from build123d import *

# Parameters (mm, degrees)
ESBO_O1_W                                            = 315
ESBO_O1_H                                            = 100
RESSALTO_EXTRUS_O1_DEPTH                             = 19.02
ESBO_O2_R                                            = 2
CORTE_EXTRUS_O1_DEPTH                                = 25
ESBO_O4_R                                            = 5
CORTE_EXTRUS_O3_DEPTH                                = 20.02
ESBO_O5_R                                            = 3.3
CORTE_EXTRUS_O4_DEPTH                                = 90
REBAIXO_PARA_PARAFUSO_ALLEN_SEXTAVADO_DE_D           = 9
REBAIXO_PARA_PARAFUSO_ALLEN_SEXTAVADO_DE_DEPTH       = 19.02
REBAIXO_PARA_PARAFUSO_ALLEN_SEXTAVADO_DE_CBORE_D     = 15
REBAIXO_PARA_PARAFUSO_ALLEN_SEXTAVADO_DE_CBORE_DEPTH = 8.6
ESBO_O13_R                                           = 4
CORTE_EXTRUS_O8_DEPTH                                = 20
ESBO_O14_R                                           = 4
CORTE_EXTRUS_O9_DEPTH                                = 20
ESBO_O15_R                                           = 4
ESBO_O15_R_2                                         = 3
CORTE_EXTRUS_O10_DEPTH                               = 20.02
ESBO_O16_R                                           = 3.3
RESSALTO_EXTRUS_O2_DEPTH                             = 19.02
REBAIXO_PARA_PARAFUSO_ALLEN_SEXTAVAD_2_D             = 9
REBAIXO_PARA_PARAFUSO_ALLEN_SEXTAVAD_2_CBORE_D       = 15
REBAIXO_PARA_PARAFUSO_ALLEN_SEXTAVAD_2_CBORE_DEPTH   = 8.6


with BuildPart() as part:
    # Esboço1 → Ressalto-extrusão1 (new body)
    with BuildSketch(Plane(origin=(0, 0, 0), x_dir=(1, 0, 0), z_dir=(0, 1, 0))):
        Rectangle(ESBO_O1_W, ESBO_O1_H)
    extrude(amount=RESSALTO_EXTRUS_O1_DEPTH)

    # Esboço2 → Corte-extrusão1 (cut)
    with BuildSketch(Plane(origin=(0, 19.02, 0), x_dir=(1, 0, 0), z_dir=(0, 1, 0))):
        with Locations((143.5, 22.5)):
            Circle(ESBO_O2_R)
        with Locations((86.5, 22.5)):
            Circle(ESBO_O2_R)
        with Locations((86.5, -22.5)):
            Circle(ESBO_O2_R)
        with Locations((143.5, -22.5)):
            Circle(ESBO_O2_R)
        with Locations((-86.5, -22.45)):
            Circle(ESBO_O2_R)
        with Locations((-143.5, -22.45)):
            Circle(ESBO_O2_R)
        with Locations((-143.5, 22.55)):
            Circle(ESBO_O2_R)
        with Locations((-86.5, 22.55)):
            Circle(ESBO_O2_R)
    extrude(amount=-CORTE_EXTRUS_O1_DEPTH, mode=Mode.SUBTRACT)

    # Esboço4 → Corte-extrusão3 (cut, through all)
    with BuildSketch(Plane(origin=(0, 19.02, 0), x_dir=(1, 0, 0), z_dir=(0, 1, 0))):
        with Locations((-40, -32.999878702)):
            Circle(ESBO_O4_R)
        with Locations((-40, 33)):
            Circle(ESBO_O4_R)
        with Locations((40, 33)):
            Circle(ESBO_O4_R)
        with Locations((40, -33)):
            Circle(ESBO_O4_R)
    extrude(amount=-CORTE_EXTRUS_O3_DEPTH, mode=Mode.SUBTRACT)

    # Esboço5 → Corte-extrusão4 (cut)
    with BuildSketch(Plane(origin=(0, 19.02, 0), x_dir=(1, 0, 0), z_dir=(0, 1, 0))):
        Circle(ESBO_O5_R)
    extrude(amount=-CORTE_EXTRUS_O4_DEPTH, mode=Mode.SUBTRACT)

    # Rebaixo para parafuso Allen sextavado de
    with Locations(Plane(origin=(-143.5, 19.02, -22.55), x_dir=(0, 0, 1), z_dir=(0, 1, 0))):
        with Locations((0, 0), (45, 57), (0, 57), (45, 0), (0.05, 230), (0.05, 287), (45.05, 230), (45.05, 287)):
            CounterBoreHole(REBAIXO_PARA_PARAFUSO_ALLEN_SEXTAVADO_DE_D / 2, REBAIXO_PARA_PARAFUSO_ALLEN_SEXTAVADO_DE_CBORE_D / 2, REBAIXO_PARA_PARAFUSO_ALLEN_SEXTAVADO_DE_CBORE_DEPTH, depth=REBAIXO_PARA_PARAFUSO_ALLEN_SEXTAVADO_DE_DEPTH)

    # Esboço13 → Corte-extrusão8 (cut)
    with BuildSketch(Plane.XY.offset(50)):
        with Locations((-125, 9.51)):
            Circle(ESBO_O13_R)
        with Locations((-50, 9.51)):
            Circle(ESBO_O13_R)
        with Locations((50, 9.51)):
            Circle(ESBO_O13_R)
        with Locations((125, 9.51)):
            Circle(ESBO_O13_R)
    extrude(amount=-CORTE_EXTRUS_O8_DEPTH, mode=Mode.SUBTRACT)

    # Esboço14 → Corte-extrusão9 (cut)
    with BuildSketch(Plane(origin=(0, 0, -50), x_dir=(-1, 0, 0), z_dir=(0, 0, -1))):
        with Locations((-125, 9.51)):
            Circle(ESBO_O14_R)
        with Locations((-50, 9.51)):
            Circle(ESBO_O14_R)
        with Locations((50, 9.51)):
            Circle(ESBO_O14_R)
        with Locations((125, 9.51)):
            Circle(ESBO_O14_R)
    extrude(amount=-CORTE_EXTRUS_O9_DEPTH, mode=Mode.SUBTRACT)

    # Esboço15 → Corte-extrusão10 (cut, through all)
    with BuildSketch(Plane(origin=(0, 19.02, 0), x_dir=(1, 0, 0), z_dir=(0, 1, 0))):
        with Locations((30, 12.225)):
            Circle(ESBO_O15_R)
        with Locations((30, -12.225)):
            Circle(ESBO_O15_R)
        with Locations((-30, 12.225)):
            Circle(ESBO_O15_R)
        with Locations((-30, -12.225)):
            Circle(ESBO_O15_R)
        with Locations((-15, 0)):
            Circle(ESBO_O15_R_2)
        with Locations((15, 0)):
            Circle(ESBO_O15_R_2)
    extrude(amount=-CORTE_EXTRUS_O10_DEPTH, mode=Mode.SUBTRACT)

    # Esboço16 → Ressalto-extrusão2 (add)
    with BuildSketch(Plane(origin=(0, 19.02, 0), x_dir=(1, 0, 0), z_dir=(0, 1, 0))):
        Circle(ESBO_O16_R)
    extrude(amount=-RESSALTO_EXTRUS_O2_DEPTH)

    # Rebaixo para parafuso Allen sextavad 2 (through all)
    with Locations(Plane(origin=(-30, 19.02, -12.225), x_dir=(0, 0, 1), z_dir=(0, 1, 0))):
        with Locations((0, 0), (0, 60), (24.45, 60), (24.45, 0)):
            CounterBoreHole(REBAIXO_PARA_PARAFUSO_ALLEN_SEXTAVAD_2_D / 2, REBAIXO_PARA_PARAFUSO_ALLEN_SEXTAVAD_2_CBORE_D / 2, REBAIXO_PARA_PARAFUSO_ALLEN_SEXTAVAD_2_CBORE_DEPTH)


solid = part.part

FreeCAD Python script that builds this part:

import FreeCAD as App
import Part
import Sketcher


def add_polygon(sketch, points):
    """Adds a closed chain of lines whose ends are joined by coincident constraints."""
    first, n = sketch.GeometryCount, len(points)
    for a, b in zip(points, points[1:] + points[:1]):
        sketch.addGeometry(Part.LineSegment(App.Vector(*a, 0), App.Vector(*b, 0)), False)
    for i in range(n):
        sketch.addConstraint(Sketcher.Constraint("Coincident", first + i, 2, first + (i + 1) % n, 1))

doc = App.newDocument("Part")
params = doc.addObject("Spreadsheet::Sheet", "Params")
for row, (alias, value) in enumerate([
    ("sketch1_width", "315 mm"),
    ("sketch1_height", "100 mm"),
    ("pad1_length", "19.02 mm"),
    ("sketch2_diameter", "4 mm"),
    ("pocket1_length", "25 mm"),
    ("sketch3_diameter", "10 mm"),
    ("sketch4_diameter", "6.6 mm"),
    ("pocket3_length", "90 mm"),
    ("sketch5_diameter", "9 mm"),
    ("hole_diameter", "9 mm"),
    ("hole_depth", "19.02 mm"),
    ("hole_cbore_diameter", "15 mm"),
    ("hole_cbore_depth", "8.6 mm"),
    ("sketch6_diameter", "8 mm"),
    ("pocket4_length", "20 mm"),
    ("sketch7_diameter", "8 mm"),
    ("pocket5_length", "20 mm"),
    ("sketch8_diameter", "8 mm"),
    ("sketch8_diameter2", "6 mm"),
    ("sketch9_diameter", "6.6 mm"),
    ("pad2_length", "19.02 mm"),
    ("sketch10_diameter", "9 mm"),
    ("hole2_diameter", "9 mm"),
    ("hole2_cbore_diameter", "15 mm"),
    ("hole2_cbore_depth", "8.6 mm"),
], start=1):
    params.set(f"A{row}", alias)
    params.set(f"B{row}", "=" + value)
    params.setAlias(f"B{row}", alias)

body = doc.addObject("PartDesign::Body", "Body")

# Sketch on XZ plane
sketch1 = body.newObject("Sketcher::SketchObject", "Sketch")
sketch1.AttachmentSupport = (doc.getObject("XZ_Plane"), [""])
sketch1.MapMode = "FlatFace"
add_polygon(sketch1, [(-158, -50), (-158, 50), (158, 50), (158, -50)])  # lines 0-3
sketch1.addConstraint([
    Sketcher.Constraint("Vertical", 0),
    Sketcher.Constraint("Horizontal", 1),
    Sketcher.Constraint("Vertical", 2),
    Sketcher.Constraint("Horizontal", 3),
    Sketcher.Constraint("Symmetric", 0, 2, 2, 2, -1, 1),
    Sketcher.Constraint("DistanceX", 1, 1, 1, 2, 315.0),
    Sketcher.Constraint("DistanceY", 0, 1, 0, 2, 100.0),
])
sketch1.setExpression("Constraints[9]", "Params.sketch1_width")
sketch1.setExpression("Constraints[10]", "Params.sketch1_height")
pad1 = body.newObject("PartDesign::Pad", "Pad")
pad1.Profile = sketch1
pad1.setExpression("Length", "Params.pad1_length")
pad1.Reversed = True

# Sketch on XZ plane
sketch2 = body.newObject("Sketcher::SketchObject", "Sketch001")
sketch2.AttachmentSupport = (doc.getObject("XZ_Plane"), [""])
sketch2.MapMode = "FlatFace"
sketch2.AttachmentOffset = App.Placement(App.Vector(0, 0, -19.02), App.Rotation())
sketch2.addGeometry([
    Part.Circle(App.Vector(143.5, -22.5, 0), App.Vector(0, 0, 1), 2),  # 0
    Part.Circle(App.Vector(86.5, -22.5, 0), App.Vector(0, 0, 1), 2),  # 1
    Part.Circle(App.Vector(86.5, 22.5, 0), App.Vector(0, 0, 1), 2),  # 2
    Part.Circle(App.Vector(143.5, 22.5, 0), App.Vector(0, 0, 1), 2),  # 3
    Part.Circle(App.Vector(-86.5, 22.4, 0), App.Vector(0, 0, 1), 2),  # 4
    Part.Circle(App.Vector(-143.5, 22.4, 0), App.Vector(0, 0, 1), 2),  # 5
    Part.Circle(App.Vector(-143.5, -22.6, 0), App.Vector(0, 0, 1), 2),  # 6
    Part.Circle(App.Vector(-86.5, -22.6, 0), App.Vector(0, 0, 1), 2),  # 7
], False)
sketch2.addConstraint([
    Sketcher.Constraint("Equal", 0, 1),
    Sketcher.Constraint("Equal", 1, 2),
    Sketcher.Constraint("Equal", 2, 3),
    Sketcher.Constraint("Equal", 3, 4),
    Sketcher.Constraint("Equal", 4, 5),
    Sketcher.Constraint("Equal", 5, 6),
    Sketcher.Constraint("Equal", 6, 7),
    Sketcher.Constraint("Symmetric", 1, 3, 2, 3, -1),
    Sketcher.Constraint("Symmetric", 0, 3, 3, 3, -1),
    Sketcher.Constraint("Horizontal", 0, 3, 1, 3),
    Sketcher.Constraint("Horizontal", 4, 3, 5, 3),
    Sketcher.Constraint("Horizontal", 6, 3, 7, 3),
    Sketcher.Constraint("Vertical", 5, 3, 6, 3),
    Sketcher.Constraint("Vertical", 4, 3, 7, 3),
    Sketcher.Constraint("Diameter", 0, 4.0),
    Sketcher.Constraint("DistanceX", 1, 3, 0, 3, 57.0),
    Sketcher.Constraint("DistanceY", 1, 3, 2, 3, 45.0),
    Sketcher.Constraint("DistanceX", 4, 3, 2, 3, 173.0),
    Sketcher.Constraint("DistanceX", 5, 3, 4, 3, 57.0),
    Sketcher.Constraint("DistanceY", 6, 3, 5, 3, 45.0),
    Sketcher.Constraint("DistanceX", -1, 1, 0, 3, 143.5),
    Sketcher.Constraint("DistanceY", -1, 1, 4, 3, 22.45),
])
sketch2.setExpression("Constraints[14]", "Params.sketch2_diameter")
pocket1 = body.newObject("PartDesign::Pocket", "Pocket")
pocket1.Profile = sketch2
pocket1.setExpression("Length", "Params.pocket1_length")
pocket1.Reversed = True

# Sketch on XZ plane
sketch3 = body.newObject("Sketcher::SketchObject", "Sketch002")
sketch3.AttachmentSupport = (doc.getObject("XZ_Plane"), [""])
sketch3.MapMode = "FlatFace"
sketch3.AttachmentOffset = App.Placement(App.Vector(0, 0, -19.02), App.Rotation())
sketch3.addGeometry([
    Part.Circle(App.Vector(-40, 33, 0), App.Vector(0, 0, 1), 5),
    Part.Circle(App.Vector(-40, -33, 0), App.Vector(0, 0, 1), 5),
    Part.Circle(App.Vector(40, -33, 0), App.Vector(0, 0, 1), 5),
    Part.Circle(App.Vector(40, 33, 0), App.Vector(0, 0, 1), 5),
], False)
sketch3.addConstraint([
    Sketcher.Constraint("Equal", 0, 1),
    Sketcher.Constraint("Equal", 1, 2),
    Sketcher.Constraint("Equal", 2, 3),
    Sketcher.Constraint("Symmetric", 1, 3, 3, 3, -1, 1),
    Sketcher.Constraint("Symmetric", 1, 3, 2, 3, -2),
    Sketcher.Constraint("Vertical", 0, 3, 1, 3),
    Sketcher.Constraint("Diameter", 0, 10.0),
    Sketcher.Constraint("DistanceX", 0, 3, -1, 1, 40.0),
    Sketcher.Constraint("DistanceY", 1, 3, -1, 1, 33.0),
    Sketcher.Constraint("DistanceY", -1, 1, 0, 3, 32.999879),
])
sketch3.setExpression("Constraints[6]", "Params.sketch3_diameter")
pocket2 = body.newObject("PartDesign::Pocket", "Pocket001")
pocket2.Profile = sketch3
pocket2.Type = "ThroughAll"
pocket2.Reversed = True

# Sketch on XZ plane
sketch4 = body.newObject("Sketcher::SketchObject", "Sketch003")
sketch4.AttachmentSupport = (doc.getObject("XZ_Plane"), [""])
sketch4.MapMode = "FlatFace"
sketch4.AttachmentOffset = App.Placement(App.Vector(0, 0, -19.02), App.Rotation())
sketch4.addGeometry(Part.Circle(App.Vector(0, 0, 0), App.Vector(0, 0, 1), 3.3), False)
sketch4.addConstraint([
    Sketcher.Constraint("Coincident", 0, 3, -1, 1),
    Sketcher.Constraint("Diameter", 0, 6.6),
])
sketch4.setExpression("Constraints[1]", "Params.sketch4_diameter")
pocket3 = body.newObject("PartDesign::Pocket", "Pocket002")
pocket3.Profile = sketch4
pocket3.setExpression("Length", "Params.pocket3_length")
pocket3.Reversed = True

# Sketch on XZ plane
sketch5 = body.newObject("Sketcher::SketchObject", "Sketch004")
sketch5.AttachmentSupport = (doc.getObject("XZ_Plane"), [""])
sketch5.MapMode = "FlatFace"
sketch5.AttachmentOffset = App.Placement(App.Vector(0, 0, -19.02), App.Rotation())
sketch5.addGeometry([
    Part.Circle(App.Vector(-143.5, -22.6, 0), App.Vector(0, 0, 1), 4.5),  # 0
    Part.Circle(App.Vector(-86.5, 22.4, 0), App.Vector(0, 0, 1), 4.5),  # 1
    Part.Circle(App.Vector(-86.5, -22.6, 0), App.Vector(0, 0, 1), 4.5),  # 2
    Part.Circle(App.Vector(-143.5, 22.4, 0), App.Vector(0, 0, 1), 4.5),  # 3
    Part.Circle(App.Vector(86.5, -22.5, 0), App.Vector(0, 0, 1), 4.5),  # 4
    Part.Circle(App.Vector(143.5, -22.5, 0), App.Vector(0, 0, 1), 4.5),  # 5
    Part.Circle(App.Vector(86.5, 22.5, 0), App.Vector(0, 0, 1), 4.5),  # 6
    Part.Circle(App.Vector(143.5, 22.5, 0), App.Vector(0, 0, 1), 4.5),  # 7
], False)
sketch5.addConstraint([
    Sketcher.Constraint("Equal", 0, 1),
    Sketcher.Constraint("Equal", 1, 2),
    Sketcher.Constraint("Equal", 2, 3),
    Sketcher.Constraint("Equal", 3, 4),
    Sketcher.Constraint("Equal", 4, 5),
    Sketcher.Constraint("Equal", 5, 6),
    Sketcher.Constraint("Equal", 6, 7),
    Sketcher.Constraint("Symmetric", 4, 3, 6, 3, -1),
    Sketcher.Constraint("Symmetric", 5, 3, 7, 3, -1),
    Sketcher.Constraint("Horizontal", 0, 3, 2, 3),
    Sketcher.Constraint("Horizontal", 1, 3, 3, 3),
    Sketcher.Constraint("Horizontal", 4, 3, 5, 3),
    Sketcher.Constraint("Vertical", 1, 3, 2, 3),
    Sketcher.Constraint("Vertical", 0, 3, 3, 3),
    Sketcher.Constraint("Diameter", 0, 9.0),
    Sketcher.Constraint("DistanceX", 0, 3, 1, 3, 57.0),
    Sketcher.Constraint("DistanceY", 0, 3, 1, 3, 45.0),
    Sketcher.Constraint("DistanceX", 2, 3, 4, 3, 173.0),
    Sketcher.Constraint("DistanceX", 4, 3, 5, 3, 57.0),
    Sketcher.Constraint("DistanceY", 4, 3, 6, 3, 45.0),
    Sketcher.Constraint("DistanceX", 0, 3, -1, 1, 143.5),
    Sketcher.Constraint("DistanceY", 0, 3, -1, 1, 22.55),
])
sketch5.setExpression("Constraints[14]", "Params.sketch5_diameter")
doc.recompute()
hole = body.newObject("PartDesign::Hole", "Hole")
hole.Profile = sketch5
hole.ThreadType = "None"
hole.setExpression("Diameter", "Params.hole_diameter")
hole.DepthType = "Dimension"
hole.setExpression("Depth", "Params.hole_depth")
hole.DrillPoint = "Flat"
hole.HoleCutType = "Counterbore"
hole.setExpression("HoleCutDiameter", "Params.hole_cbore_diameter")
hole.setExpression("HoleCutDepth", "Params.hole_cbore_depth")
hole.Reversed = True

# Sketch on XY plane
sketch6 = body.newObject("Sketcher::SketchObject", "Sketch005")
sketch6.AttachmentSupport = (doc.getObject("XY_Plane"), [""])
sketch6.MapMode = "FlatFace"
sketch6.AttachmentOffset = App.Placement(App.Vector(0, 0, 50), App.Rotation())
sketch6.addGeometry([
    Part.Circle(App.Vector(-125, 9.5, 0), App.Vector(0, 0, 1), 4),
    Part.Circle(App.Vector(-50, 9.5, 0), App.Vector(0, 0, 1), 4),
    Part.Circle(App.Vector(50, 9.5, 0), App.Vector(0, 0, 1), 4),
    Part.Circle(App.Vector(125, 9.5, 0), App.Vector(0, 0, 1), 4),
], False)
sketch6.addConstraint([
    Sketcher.Constraint("Equal", 0, 1),
    Sketcher.Constraint("Equal", 1, 2),
    Sketcher.Constraint("Equal", 2, 3),
    Sketcher.Constraint("Symmetric", 1, 3, 2, 3, -2),
    Sketcher.Constraint("Symmetric", 0, 3, 3, 3, -2),
    Sketcher.Constraint("Horizontal", 0, 3, 1, 3),
    Sketcher.Constraint("Diameter", 0, 8.0),
    Sketcher.Constraint("DistanceX", 0, 3, -1, 1, 125.0),
    Sketcher.Constraint("DistanceX", 1, 3, -1, 1, 50.0),
    Sketcher.Constraint("DistanceY", -1, 1, 0, 3, 9.51),
])
sketch6.setExpression("Constraints[6]", "Params.sketch6_diameter")
pocket4 = body.newObject("PartDesign::Pocket", "Pocket003")
pocket4.Profile = sketch6
pocket4.setExpression("Length", "Params.pocket4_length")

# Sketch on XY plane
sketch7 = body.newObject("Sketcher::SketchObject", "Sketch006")
sketch7.AttachmentSupport = (doc.getObject("XY_Plane"), [""])
sketch7.MapMode = "FlatFace"
sketch7.AttachmentOffset = App.Placement(App.Vector(0, 0, -50), App.Rotation())
sketch7.addGeometry([
    Part.Circle(App.Vector(125, 9.5, 0), App.Vector(0, 0, 1), 4),
    Part.Circle(App.Vector(50, 9.5, 0), App.Vector(0, 0, 1), 4),
    Part.Circle(App.Vector(-50, 9.5, 0), App.Vector(0, 0, 1), 4),
    Part.Circle(App.Vector(-125, 9.5, 0), App.Vector(0, 0, 1), 4),
], False)
sketch7.addConstraint([
    Sketcher.Constraint("Equal", 0, 1),
    Sketcher.Constraint("Equal", 1, 2),
    Sketcher.Constraint("Equal", 2, 3),
    Sketcher.Constraint("Symmetric", 1, 3, 2, 3, -2),
    Sketcher.Constraint("Symmetric", 0, 3, 3, 3, -2),
    Sketcher.Constraint("Horizontal", 0, 3, 1, 3),
    Sketcher.Constraint("Diameter", 0, 8.0),
    Sketcher.Constraint("DistanceX", -1, 1, 0, 3, 125.0),
    Sketcher.Constraint("DistanceX", -1, 1, 1, 3, 50.0),
    Sketcher.Constraint("DistanceY", -1, 1, 0, 3, 9.51),
])
sketch7.setExpression("Constraints[6]", "Params.sketch7_diameter")
pocket5 = body.newObject("PartDesign::Pocket", "Pocket004")
pocket5.Profile = sketch7
pocket5.setExpression("Length", "Params.pocket5_length")
pocket5.Reversed = True

# Sketch on XZ plane
sketch8 = body.newObject("Sketcher::SketchObject", "Sketch007")
sketch8.AttachmentSupport = (doc.getObject("XZ_Plane"), [""])
sketch8.MapMode = "FlatFace"
sketch8.AttachmentOffset = App.Placement(App.Vector(0, 0, -19.02), App.Rotation())
sketch8.addGeometry([
    Part.Circle(App.Vector(30, -12.2, 0), App.Vector(0, 0, 1), 4),  # 0
    Part.Circle(App.Vector(30, 12.2, 0), App.Vector(0, 0, 1), 4),  # 1
    Part.Circle(App.Vector(-30, -12.2, 0), App.Vector(0, 0, 1), 4),  # 2
    Part.Circle(App.Vector(-30, 12.2, 0), App.Vector(0, 0, 1), 4),  # 3
    Part.Circle(App.Vector(-15, 0, 0), App.Vector(0, 0, 1), 3),  # 4
    Part.Circle(App.Vector(15, 0, 0), App.Vector(0, 0, 1), 3),  # 5
], False)
sketch8.addConstraint([
    Sketcher.Constraint("Equal", 0, 1),
    Sketcher.Constraint("Equal", 1, 2),
    Sketcher.Constraint("Equal", 2, 3),
    Sketcher.Constraint("Equal", 4, 5),
    Sketcher.Constraint("Symmetric", 1, 3, 2, 3, -1, 1),
    Sketcher.Constraint("Symmetric", 0, 3, 3, 3, -1, 1),
    Sketcher.Constraint("Symmetric", 4, 3, 5, 3, -1, 1),
    Sketcher.Constraint("Symmetric", 0, 3, 2, 3, -2),
    Sketcher.Constraint("PointOnObject", 4, 3, -1),
    Sketcher.Constraint("Diameter", 0, 8.0),
    Sketcher.Constraint("Diameter", 4, 6.0),
    Sketcher.Constraint("DistanceX", -1, 1, 0, 3, 30.0),
    Sketcher.Constraint("DistanceX", 4, 3, -1, 1, 15.0),
    Sketcher.Constraint("DistanceY", 0, 3, 1, 3, 24.45),
])
sketch8.setExpression("Constraints[9]", "Params.sketch8_diameter")
sketch8.setExpression("Constraints[10]", "Params.sketch8_diameter2")
pocket6 = body.newObject("PartDesign::Pocket", "Pocket005")
pocket6.Profile = sketch8
pocket6.Type = "ThroughAll"
pocket6.Reversed = True

# Sketch on XZ plane
sketch9 = body.newObject("Sketcher::SketchObject", "Sketch008")
sketch9.AttachmentSupport = (doc.getObject("XZ_Plane"), [""])
sketch9.MapMode = "FlatFace"
sketch9.AttachmentOffset = App.Placement(App.Vector(0, 0, -19.02), App.Rotation())
sketch9.addGeometry(Part.Circle(App.Vector(0, 0, 0), App.Vector(0, 0, 1), 3.3), False)
sketch9.addConstraint([
    Sketcher.Constraint("Coincident", 0, 3, -1, 1),
    Sketcher.Constraint("Diameter", 0, 6.6),
])
sketch9.setExpression("Constraints[1]", "Params.sketch9_diameter")
pad2 = body.newObject("PartDesign::Pad", "Pad001")
pad2.Profile = sketch9
pad2.setExpression("Length", "Params.pad2_length")

# Sketch on XZ plane
sketch10 = body.newObject("Sketcher::SketchObject", "Sketch009")
sketch10.AttachmentSupport = (doc.getObject("XZ_Plane"), [""])
sketch10.MapMode = "FlatFace"
sketch10.AttachmentOffset = App.Placement(App.Vector(0, 0, -19.02), App.Rotation())
sketch10.addGeometry([
    Part.Circle(App.Vector(-30, -12.2, 0), App.Vector(0, 0, 1), 4.5),
    Part.Circle(App.Vector(30, -12.2, 0), App.Vector(0, 0, 1), 4.5),
    Part.Circle(App.Vector(30, 12.2, 0), App.Vector(0, 0, 1), 4.5),
    Part.Circle(App.Vector(-30, 12.2, 0), App.Vector(0, 0, 1), 4.5),
], False)
sketch10.addConstraint([
    Sketcher.Constraint("Equal", 0, 1),
    Sketcher.Constraint("Equal", 1, 2),
    Sketcher.Constraint("Equal", 2, 3),
    Sketcher.Constraint("Symmetric", 0, 3, 2, 3, -1, 1),
    Sketcher.Constraint("Symmetric", 1, 3, 3, 3, -1, 1),
    Sketcher.Constraint("Symmetric", 0, 3, 1, 3, -2),
    Sketcher.Constraint("Diameter", 0, 9.0),
    Sketcher.Constraint("DistanceX", 0, 3, -1, 1, 30.0),
    Sketcher.Constraint("DistanceY", 1, 3, 2, 3, 24.45),
])
sketch10.setExpression("Constraints[6]", "Params.sketch10_diameter")
doc.recompute()
hole2 = body.newObject("PartDesign::Hole", "Hole001")
hole2.Profile = sketch10
hole2.ThreadType = "None"
hole2.setExpression("Diameter", "Params.hole2_diameter")
hole2.DepthType = "ThroughAll"
hole2.HoleCutType = "Counterbore"
hole2.setExpression("HoleCutDiameter", "Params.hole2_cbore_diameter")
hole2.setExpression("HoleCutDepth", "Params.hole2_cbore_depth")
hole2.Reversed = True

doc.recompute()
